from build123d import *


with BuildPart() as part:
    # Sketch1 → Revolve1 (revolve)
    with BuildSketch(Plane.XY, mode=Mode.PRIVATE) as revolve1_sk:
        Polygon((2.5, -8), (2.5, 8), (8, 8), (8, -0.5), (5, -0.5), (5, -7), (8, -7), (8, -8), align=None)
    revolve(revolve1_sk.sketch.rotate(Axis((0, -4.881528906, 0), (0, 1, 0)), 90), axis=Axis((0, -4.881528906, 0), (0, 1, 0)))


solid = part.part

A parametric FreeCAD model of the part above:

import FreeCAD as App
import Part
import Sketcher
Q = App.Units.Quantity


def add_polygon(sketch, points):
    """Adds a closed chain of lines whose ends are joined by coincident constraints."""
    first, n = sketch.GeometryCount, len(points)
    for a, b in zip(points, points[1:] + points[:1]):
        sketch.addGeometry(Part.LineSegment(App.Vector(*a, 0), App.Vector(*b, 0)), False)
    for i in range(n):
        sketch.addConstraint(Sketcher.Constraint("Coincident", first + i, 2, first + (i + 1) % n, 1))

doc = App.newDocument("Part")
body = doc.addObject("PartDesign::Body", "Body")

sketch1 = body.newObject("Sketcher::SketchObject", "Sketch")
sketch1.AttachmentSupport = (doc.getObject("XY_Plane"), [""])
sketch1.MapMode = "FlatFace"
add_polygon(sketch1, [(2.5, 8), (2.5, -8), (8, -8), (8, -7), (5, -7), (5, -0.5), (8, -0.5), (8, 8)])
sketch1.addConstraint(Sketcher.Constraint("Vertical", 0))
sketch1.addConstraint(Sketcher.Constraint("Horizontal", 1))
sketch1.addConstraint(Sketcher.Constraint("Vertical", 2))
sketch1.addConstraint(Sketcher.Constraint("Horizontal", 3))
sketch1.addConstraint(Sketcher.Constraint("Vertical", 4))
sketch1.addConstraint(Sketcher.Constraint("Horizontal", 5))
sketch1.addConstraint(Sketcher.Constraint("Vertical", 6))
sketch1.addConstraint(Sketcher.Constraint("Horizontal", 7))
sketch1.addConstraint(Sketcher.Constraint("Symmetric", 1, 2, 6, 2, -1))
sketch1.addConstraint(Sketcher.Constraint("DistanceX", 3, 2, 3, 1, Q("3 mm")))
sketch1.addConstraint(Sketcher.Constraint("DistanceY", 0, 2, 0, 1, Q("16 mm")))
sketch1.addConstraint(Sketcher.Constraint("DistanceY", 2, 1, 2, 2, Q("1 mm")))
sketch1.addConstraint(Sketcher.Constraint("DistanceX", 1, 1, 1, 2, Q("5.5 mm")))
sketch1.addConstraint(Sketcher.Constraint("DistanceY", 4, 1, 4, 2, Q("6.5 mm")))
sketch1.addConstraint(Sketcher.Constraint("DistanceX", -1, 1, 1, 2, Q("8 mm")))
revolution = body.newObject("PartDesign::Revolution", "Revolution")
revolution.Profile = sketch1
revolution.ReferenceAxis = (sketch1, ["V_Axis"])
revolution.Angle = 360

doc.recompute()
